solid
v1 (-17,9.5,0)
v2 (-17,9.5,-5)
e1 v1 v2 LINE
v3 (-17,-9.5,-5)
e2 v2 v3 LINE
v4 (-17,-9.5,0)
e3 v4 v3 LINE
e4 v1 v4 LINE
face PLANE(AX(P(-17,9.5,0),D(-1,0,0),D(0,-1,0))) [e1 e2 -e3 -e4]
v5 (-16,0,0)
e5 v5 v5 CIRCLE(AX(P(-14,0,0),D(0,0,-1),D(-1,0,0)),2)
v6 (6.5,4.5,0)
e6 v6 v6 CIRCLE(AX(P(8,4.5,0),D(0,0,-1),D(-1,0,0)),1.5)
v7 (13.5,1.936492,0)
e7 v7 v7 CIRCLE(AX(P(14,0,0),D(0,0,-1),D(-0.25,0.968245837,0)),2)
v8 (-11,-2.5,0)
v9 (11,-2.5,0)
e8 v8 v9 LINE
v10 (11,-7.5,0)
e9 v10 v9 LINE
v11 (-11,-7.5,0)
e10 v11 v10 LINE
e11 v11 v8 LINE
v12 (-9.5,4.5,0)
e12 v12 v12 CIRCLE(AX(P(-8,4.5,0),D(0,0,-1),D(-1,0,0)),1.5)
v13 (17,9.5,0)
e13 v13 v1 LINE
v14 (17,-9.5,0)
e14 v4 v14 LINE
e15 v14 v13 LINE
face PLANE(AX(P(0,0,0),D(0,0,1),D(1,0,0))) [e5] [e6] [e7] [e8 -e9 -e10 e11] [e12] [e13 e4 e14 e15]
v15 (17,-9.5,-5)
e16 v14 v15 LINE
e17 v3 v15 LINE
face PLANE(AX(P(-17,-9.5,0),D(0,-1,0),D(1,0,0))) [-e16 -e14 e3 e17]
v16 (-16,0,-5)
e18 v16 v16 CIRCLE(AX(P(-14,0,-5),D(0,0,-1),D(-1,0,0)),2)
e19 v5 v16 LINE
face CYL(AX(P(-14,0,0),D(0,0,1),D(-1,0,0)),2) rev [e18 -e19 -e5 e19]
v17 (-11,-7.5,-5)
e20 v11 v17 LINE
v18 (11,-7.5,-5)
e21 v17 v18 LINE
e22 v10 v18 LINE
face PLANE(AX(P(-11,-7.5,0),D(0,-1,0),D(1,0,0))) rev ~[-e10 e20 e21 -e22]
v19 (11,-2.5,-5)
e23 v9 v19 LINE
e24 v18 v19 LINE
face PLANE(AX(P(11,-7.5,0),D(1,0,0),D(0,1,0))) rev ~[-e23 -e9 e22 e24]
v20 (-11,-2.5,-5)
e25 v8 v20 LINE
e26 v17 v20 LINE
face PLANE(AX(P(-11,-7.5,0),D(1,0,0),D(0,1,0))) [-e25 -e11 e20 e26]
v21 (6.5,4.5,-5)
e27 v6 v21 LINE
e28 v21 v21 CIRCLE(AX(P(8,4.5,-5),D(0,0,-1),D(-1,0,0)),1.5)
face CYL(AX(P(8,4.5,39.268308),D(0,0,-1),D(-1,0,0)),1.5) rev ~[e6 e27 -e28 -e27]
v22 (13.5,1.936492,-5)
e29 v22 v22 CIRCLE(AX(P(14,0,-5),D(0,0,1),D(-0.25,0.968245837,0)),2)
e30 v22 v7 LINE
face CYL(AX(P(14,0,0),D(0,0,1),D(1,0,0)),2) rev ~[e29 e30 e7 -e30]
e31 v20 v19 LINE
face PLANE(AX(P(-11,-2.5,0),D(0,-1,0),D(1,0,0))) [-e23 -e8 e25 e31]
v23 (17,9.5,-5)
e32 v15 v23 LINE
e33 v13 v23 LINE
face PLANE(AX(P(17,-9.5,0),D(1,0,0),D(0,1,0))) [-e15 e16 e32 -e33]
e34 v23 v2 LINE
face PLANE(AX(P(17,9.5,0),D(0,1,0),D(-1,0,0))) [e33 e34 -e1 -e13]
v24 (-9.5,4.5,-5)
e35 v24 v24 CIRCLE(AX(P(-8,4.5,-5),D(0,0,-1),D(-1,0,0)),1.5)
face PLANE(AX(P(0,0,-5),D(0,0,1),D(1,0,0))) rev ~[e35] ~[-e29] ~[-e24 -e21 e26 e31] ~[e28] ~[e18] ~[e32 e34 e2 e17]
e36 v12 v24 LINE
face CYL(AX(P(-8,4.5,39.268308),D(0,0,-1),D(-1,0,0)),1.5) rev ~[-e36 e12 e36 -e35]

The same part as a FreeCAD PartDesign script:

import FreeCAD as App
import Part
import Sketcher

V = App.Vector


def add_polygon(sketch, points):
    """Adds a closed chain of lines whose ends are joined by coincident constraints."""
    first, n = sketch.GeometryCount, len(points)
    for a, b in zip(points, points[1:] + points[:1]):
        sketch.addGeometry(Part.LineSegment(App.Vector(*a, 0), App.Vector(*b, 0)), False)
    for i in range(n):
        sketch.addConstraint(Sketcher.Constraint("Coincident", first + i, 2, first + (i + 1) % n, 1))

doc = App.newDocument("Part")
body = doc.addObject("PartDesign::Body", "Body")

sketch1 = body.newObject("Sketcher::SketchObject", "Sketch")
sketch1.AttachmentSupport = (doc.getObject("XY_Plane"), [""])
sketch1.MapMode = "FlatFace"
add_polygon(sketch1, [(17, 9.5), (-17, 9.5), (-17, -9.5), (17, -9.5)])
add_polygon(sketch1, [(11, -7.5), (-11, -7.5), (-11, -2.5), (11, -2.5)])
sketch1.addGeometry(Part.Circle(V(-14, 0, 0), V(0, 0, 1), 2), False)
sketch1.addGeometry(Part.Circle(V(14, 0, 0), V(0, 0, 1), 2), False)
sketch1.addConstraint([
    Sketcher.Constraint("Horizontal", 0),
    Sketcher.Constraint("Vertical", 1),
    Sketcher.Constraint("Horizontal", 2),
    Sketcher.Constraint("Vertical", 3),
    Sketcher.Constraint("Horizontal", 4),
    Sketcher.Constraint("Vertical", 5),
    Sketcher.Constraint("Horizontal", 6),
    Sketcher.Constraint("Vertical", 7),
    Sketcher.Constraint("Equal", 8, 9),
    Sketcher.Constraint("Symmetric", 8, 3, 9, 3, -1, 1),
    Sketcher.Constraint("Symmetric", 0, 2, 2, 2, -1, 1),
    Sketcher.Constraint("PointOnObject", 8, 3, -1),
    Sketcher.Constraint("Diameter", 8, 4.0),
    Sketcher.Constraint("DistanceX", 0, 2, 0, 1, 34.0),
    Sketcher.Constraint("DistanceX", 4, 2, 4, 1, 22.0),
    Sketcher.Constraint("DistanceY", 1, 2, 1, 1, 19.0),
    Sketcher.Constraint("DistanceY", 5, 1, 5, 2, 5.0),
    Sketcher.Constraint("DistanceX", 8, 3, -1, 1, 14.0),
    Sketcher.Constraint("DistanceX", 4, 2, -1, 1, 11.0),
    Sketcher.Constraint("DistanceY", 1, 2, 4, 2, 2.0),
])
pad1 = body.newObject("PartDesign::Pad", "Pad")
pad1.Profile = sketch1
pad1.Length = 5
pad1.Reversed = True

sketch2 = body.newObject("Sketcher::SketchObject", "Sketch001")
sketch2.AttachmentSupport = (doc.getObject("XY_Plane"), [""])
sketch2.MapMode = "FlatFace"
sketch2.addGeometry(Part.Circle(V(13, 0, 0), V(0, 0, 1), 2), False)
sketch2.addConstraint([
    Sketcher.Constraint("PointOnObject", 0, 3, -1),
    Sketcher.Constraint("Diameter", 0, 4.0),
    Sketcher.Constraint("DistanceX", -1, 1, 0, 3, 13.0),
])
doc.recompute()
hole = body.newObject("PartDesign::Hole", "Hole")
hole.Profile = sketch2
hole.ThreadType = "None"
hole.Diameter = 4
hole.DepthType = "ThroughAll"

sketch3 = body.newObject("Sketcher::SketchObject", "Sketch002")
sketch3.AttachmentSupport = (doc.getObject("XY_Plane"), [""])
sketch3.MapMode = "FlatFace"
add_polygon(sketch3, [(17, 9.5), (-17, 9.5), (-17, -9.5), (17, -9.5)])
add_polygon(sketch3, [(11, -7.5), (-11, -7.5), (-11, -2.5), (11, -2.5)])
sketch3.addGeometry(Part.Circle(V(-14, 0, 0), V(0, 0, 1), 2), False)
sketch3.addGeometry(Part.Circle(V(14, 0, 0), V(0, 0, 1), 2), False)
sketch3.addConstraint([
    Sketcher.Constraint("Horizontal", 0),
    Sketcher.Constraint("Vertical", 1),
    Sketcher.Constraint("Horizontal", 2),
    Sketcher.Constraint("Vertical", 3),
    Sketcher.Constraint("Horizontal", 4),
    Sketcher.Constraint("Vertical", 5),
    Sketcher.Constraint("Horizontal", 6),
    Sketcher.Constraint("Vertical", 7),
    Sketcher.Constraint("Equal", 8, 9),
    Sketcher.Constraint("Symmetric", 8, 3, 9, 3, -1, 1),
    Sketcher.Constraint("Symmetric", 0, 2, 2, 2, -1, 1),
    Sketcher.Constraint("PointOnObject", 8, 3, -1),
    Sketcher.Constraint("Diameter", 8, 4.0),
    Sketcher.Constraint("DistanceX", 0, 2, 0, 1, 34.0),
    Sketcher.Constraint("DistanceX", 4, 2, 4, 1, 22.0),
    Sketcher.Constraint("DistanceY", 1, 2, 1, 1, 19.0),
    Sketcher.Constraint("DistanceY", 5, 1, 5, 2, 5.0),
    Sketcher.Constraint("DistanceX", 8, 3, -1, 1, 14.0),
    Sketcher.Constraint("DistanceX", 4, 2, -1, 1, 11.0),
    Sketcher.Constraint("DistanceY", 1, 2, 4, 2, 2.0),
])
pad2 = body.newObject("PartDesign::Pad", "Pad001")
pad2.Profile = sketch3
pad2.Length = 5
pad2.Reversed = True

sketch4 = body.newObject("Sketcher::SketchObject", "Sketch003")
sketch4.AttachmentSupport = (doc.getObject("XY_Plane"), [""])
sketch4.MapMode = "FlatFace"
sketch4.addGeometry([
    Part.Circle(V(-8, 4.5, 0), V(0, 0, 1), 1.5),
    Part.Circle(V(8, 4.5, 0), V(0, 0, 1), 1.5),
], False)
sketch4.addConstraint([
    Sketcher.Constraint("Equal", 0, 1),
    Sketcher.Constraint("Symmetric", 0, 3, 1, 3, -2),
    Sketcher.Constraint("Diameter", 0, 3.0),
    Sketcher.Constraint("DistanceX", 0, 3, -1, 1, 8.0),
    Sketcher.Constraint("DistanceY", -1, 1, 0, 3, 4.5),
])
doc.recompute()
hole2 = body.newObject("PartDesign::Hole", "Hole001")
hole2.Profile = sketch4
hole2.ThreadType = "None"
hole2.Diameter = 3
hole2.DepthType = "ThroughAll"

doc.recompute()
